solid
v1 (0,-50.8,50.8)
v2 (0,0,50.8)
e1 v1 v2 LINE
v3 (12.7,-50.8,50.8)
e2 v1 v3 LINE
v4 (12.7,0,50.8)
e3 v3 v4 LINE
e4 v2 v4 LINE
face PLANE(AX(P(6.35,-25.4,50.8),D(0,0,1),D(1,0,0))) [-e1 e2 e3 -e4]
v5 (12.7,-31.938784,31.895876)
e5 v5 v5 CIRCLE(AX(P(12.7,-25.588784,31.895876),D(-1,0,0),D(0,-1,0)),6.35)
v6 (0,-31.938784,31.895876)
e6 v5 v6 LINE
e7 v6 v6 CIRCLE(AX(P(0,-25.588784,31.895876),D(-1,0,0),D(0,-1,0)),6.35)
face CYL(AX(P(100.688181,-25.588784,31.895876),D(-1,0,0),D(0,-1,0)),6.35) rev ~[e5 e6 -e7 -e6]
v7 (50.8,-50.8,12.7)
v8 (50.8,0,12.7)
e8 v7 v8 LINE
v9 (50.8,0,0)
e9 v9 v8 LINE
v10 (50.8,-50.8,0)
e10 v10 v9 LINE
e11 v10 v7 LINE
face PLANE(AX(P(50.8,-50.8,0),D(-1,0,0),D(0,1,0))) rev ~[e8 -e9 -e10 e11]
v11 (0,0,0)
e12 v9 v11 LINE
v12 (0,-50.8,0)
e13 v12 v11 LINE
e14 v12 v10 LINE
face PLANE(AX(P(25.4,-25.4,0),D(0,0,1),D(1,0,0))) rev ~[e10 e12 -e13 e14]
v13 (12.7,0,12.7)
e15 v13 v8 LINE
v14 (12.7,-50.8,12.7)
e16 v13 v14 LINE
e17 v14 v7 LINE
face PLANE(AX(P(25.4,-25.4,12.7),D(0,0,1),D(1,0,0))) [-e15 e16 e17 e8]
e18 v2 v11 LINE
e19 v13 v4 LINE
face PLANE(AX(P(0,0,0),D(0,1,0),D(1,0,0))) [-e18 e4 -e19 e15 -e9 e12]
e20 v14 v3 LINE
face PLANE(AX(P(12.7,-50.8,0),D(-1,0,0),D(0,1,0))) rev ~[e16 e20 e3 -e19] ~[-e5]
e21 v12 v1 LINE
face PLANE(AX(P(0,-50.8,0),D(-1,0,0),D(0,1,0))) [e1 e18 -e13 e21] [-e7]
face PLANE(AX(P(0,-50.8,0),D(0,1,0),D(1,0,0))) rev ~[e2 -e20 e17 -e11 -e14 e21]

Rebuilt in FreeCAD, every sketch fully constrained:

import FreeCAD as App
import Part
import Sketcher

V = App.Vector
Q = App.Units.Quantity


def add_polygon(sketch, points):
    """Adds a closed chain of lines whose ends are joined by coincident constraints."""
    first, n = sketch.GeometryCount, len(points)
    for a, b in zip(points, points[1:] + points[:1]):
        sketch.addGeometry(Part.LineSegment(App.Vector(*a, 0), App.Vector(*b, 0)), False)
    for i in range(n):
        sketch.addConstraint(Sketcher.Constraint("Coincident", first + i, 2, first + (i + 1) % n, 1))

doc = App.newDocument("Part")
body = doc.addObject("PartDesign::Body", "Body")

sketch1 = doc.addObject("Sketcher::SketchObject", "Sketch")
body.addObject(sketch1)
sketch1.AttachmentSupport = (doc.XY_Plane, [""])
sketch1.MapMode = "FlatFace"
add_polygon(sketch1, [(0, 0), (0, -50.8), (50.8, -50.8), (50.8, 0)])
sketch1.addConstraint([
    Sketcher.Constraint("Vertical", 0),
    Sketcher.Constraint("Horizontal", 1),
    Sketcher.Constraint("Vertical", 2),
    Sketcher.Constraint("Horizontal", 3),
    Sketcher.Constraint("Coincident", 3, 2, -1, 1),
    Sketcher.Constraint("Equal", 3, 0),
    Sketcher.Constraint("DistanceX", 1, 1, 1, 2, Q("2 in")),
])
pad1 = doc.addObject("PartDesign::Pad", "Pad")
body.addObject(pad1)
pad1.Profile = sketch1
pad1.Length = Q("0.5 in")

sketch2 = doc.addObject("Sketcher::SketchObject", "Sketch001")
body.addObject(sketch2)
sketch2.AttachmentSupport = (doc.XY_Plane, [""])
sketch2.MapMode = "FlatFace"
add_polygon(sketch2, [(0, 0), (0, -50.8), (12.7, -50.8), (12.7, 0)])
sketch2.addConstraint([
    Sketcher.Constraint("Vertical", 0),
    Sketcher.Constraint("Horizontal", 1),
    Sketcher.Constraint("Vertical", 2),
    Sketcher.Constraint("Horizontal", 3),
    Sketcher.Constraint("Coincident", 3, 2, -1, 1),
    Sketcher.Constraint("DistanceY", 0, 2, 0, 1, Q("2 in")),
    Sketcher.Constraint("DistanceX", 1, 1, 1, 2, Q("0.5 in")),
])
pad2 = doc.addObject("PartDesign::Pad", "Pad001")
body.addObject(pad2)
pad2.Profile = sketch2
pad2.Length = Q("2 in")

sketch3 = doc.addObject("Sketcher::SketchObject", "Sketch002")
body.addObject(sketch3)
sketch3.AttachmentSupport = (doc.YZ_Plane, [""])
sketch3.MapMode = "FlatFace"
sketch3.AttachmentOffset = App.Placement(V(0, 0, 0.5 * 25.4), App.Rotation())
sketch3.addGeometry(Part.Circle(V(-25.588784, 31.895876, 0), V(0, 0, 1), 6.35), False)
sketch3.addConstraint([
    Sketcher.Constraint("Diameter", 0, Q("0.5 in")),
    Sketcher.Constraint("DistanceX", 0, 3, -1, 1, 25.588784),
    Sketcher.Constraint("DistanceY", -1, 1, 0, 3, 31.895876),
])
doc.recompute()
hole = doc.addObject("PartDesign::Hole", "Hole")
body.addObject(hole)
hole.Profile = sketch3
hole.ThreadType = "None"
hole.Diameter = Q("0.5 in")
hole.DepthType = "ThroughAll"

doc.recompute()
